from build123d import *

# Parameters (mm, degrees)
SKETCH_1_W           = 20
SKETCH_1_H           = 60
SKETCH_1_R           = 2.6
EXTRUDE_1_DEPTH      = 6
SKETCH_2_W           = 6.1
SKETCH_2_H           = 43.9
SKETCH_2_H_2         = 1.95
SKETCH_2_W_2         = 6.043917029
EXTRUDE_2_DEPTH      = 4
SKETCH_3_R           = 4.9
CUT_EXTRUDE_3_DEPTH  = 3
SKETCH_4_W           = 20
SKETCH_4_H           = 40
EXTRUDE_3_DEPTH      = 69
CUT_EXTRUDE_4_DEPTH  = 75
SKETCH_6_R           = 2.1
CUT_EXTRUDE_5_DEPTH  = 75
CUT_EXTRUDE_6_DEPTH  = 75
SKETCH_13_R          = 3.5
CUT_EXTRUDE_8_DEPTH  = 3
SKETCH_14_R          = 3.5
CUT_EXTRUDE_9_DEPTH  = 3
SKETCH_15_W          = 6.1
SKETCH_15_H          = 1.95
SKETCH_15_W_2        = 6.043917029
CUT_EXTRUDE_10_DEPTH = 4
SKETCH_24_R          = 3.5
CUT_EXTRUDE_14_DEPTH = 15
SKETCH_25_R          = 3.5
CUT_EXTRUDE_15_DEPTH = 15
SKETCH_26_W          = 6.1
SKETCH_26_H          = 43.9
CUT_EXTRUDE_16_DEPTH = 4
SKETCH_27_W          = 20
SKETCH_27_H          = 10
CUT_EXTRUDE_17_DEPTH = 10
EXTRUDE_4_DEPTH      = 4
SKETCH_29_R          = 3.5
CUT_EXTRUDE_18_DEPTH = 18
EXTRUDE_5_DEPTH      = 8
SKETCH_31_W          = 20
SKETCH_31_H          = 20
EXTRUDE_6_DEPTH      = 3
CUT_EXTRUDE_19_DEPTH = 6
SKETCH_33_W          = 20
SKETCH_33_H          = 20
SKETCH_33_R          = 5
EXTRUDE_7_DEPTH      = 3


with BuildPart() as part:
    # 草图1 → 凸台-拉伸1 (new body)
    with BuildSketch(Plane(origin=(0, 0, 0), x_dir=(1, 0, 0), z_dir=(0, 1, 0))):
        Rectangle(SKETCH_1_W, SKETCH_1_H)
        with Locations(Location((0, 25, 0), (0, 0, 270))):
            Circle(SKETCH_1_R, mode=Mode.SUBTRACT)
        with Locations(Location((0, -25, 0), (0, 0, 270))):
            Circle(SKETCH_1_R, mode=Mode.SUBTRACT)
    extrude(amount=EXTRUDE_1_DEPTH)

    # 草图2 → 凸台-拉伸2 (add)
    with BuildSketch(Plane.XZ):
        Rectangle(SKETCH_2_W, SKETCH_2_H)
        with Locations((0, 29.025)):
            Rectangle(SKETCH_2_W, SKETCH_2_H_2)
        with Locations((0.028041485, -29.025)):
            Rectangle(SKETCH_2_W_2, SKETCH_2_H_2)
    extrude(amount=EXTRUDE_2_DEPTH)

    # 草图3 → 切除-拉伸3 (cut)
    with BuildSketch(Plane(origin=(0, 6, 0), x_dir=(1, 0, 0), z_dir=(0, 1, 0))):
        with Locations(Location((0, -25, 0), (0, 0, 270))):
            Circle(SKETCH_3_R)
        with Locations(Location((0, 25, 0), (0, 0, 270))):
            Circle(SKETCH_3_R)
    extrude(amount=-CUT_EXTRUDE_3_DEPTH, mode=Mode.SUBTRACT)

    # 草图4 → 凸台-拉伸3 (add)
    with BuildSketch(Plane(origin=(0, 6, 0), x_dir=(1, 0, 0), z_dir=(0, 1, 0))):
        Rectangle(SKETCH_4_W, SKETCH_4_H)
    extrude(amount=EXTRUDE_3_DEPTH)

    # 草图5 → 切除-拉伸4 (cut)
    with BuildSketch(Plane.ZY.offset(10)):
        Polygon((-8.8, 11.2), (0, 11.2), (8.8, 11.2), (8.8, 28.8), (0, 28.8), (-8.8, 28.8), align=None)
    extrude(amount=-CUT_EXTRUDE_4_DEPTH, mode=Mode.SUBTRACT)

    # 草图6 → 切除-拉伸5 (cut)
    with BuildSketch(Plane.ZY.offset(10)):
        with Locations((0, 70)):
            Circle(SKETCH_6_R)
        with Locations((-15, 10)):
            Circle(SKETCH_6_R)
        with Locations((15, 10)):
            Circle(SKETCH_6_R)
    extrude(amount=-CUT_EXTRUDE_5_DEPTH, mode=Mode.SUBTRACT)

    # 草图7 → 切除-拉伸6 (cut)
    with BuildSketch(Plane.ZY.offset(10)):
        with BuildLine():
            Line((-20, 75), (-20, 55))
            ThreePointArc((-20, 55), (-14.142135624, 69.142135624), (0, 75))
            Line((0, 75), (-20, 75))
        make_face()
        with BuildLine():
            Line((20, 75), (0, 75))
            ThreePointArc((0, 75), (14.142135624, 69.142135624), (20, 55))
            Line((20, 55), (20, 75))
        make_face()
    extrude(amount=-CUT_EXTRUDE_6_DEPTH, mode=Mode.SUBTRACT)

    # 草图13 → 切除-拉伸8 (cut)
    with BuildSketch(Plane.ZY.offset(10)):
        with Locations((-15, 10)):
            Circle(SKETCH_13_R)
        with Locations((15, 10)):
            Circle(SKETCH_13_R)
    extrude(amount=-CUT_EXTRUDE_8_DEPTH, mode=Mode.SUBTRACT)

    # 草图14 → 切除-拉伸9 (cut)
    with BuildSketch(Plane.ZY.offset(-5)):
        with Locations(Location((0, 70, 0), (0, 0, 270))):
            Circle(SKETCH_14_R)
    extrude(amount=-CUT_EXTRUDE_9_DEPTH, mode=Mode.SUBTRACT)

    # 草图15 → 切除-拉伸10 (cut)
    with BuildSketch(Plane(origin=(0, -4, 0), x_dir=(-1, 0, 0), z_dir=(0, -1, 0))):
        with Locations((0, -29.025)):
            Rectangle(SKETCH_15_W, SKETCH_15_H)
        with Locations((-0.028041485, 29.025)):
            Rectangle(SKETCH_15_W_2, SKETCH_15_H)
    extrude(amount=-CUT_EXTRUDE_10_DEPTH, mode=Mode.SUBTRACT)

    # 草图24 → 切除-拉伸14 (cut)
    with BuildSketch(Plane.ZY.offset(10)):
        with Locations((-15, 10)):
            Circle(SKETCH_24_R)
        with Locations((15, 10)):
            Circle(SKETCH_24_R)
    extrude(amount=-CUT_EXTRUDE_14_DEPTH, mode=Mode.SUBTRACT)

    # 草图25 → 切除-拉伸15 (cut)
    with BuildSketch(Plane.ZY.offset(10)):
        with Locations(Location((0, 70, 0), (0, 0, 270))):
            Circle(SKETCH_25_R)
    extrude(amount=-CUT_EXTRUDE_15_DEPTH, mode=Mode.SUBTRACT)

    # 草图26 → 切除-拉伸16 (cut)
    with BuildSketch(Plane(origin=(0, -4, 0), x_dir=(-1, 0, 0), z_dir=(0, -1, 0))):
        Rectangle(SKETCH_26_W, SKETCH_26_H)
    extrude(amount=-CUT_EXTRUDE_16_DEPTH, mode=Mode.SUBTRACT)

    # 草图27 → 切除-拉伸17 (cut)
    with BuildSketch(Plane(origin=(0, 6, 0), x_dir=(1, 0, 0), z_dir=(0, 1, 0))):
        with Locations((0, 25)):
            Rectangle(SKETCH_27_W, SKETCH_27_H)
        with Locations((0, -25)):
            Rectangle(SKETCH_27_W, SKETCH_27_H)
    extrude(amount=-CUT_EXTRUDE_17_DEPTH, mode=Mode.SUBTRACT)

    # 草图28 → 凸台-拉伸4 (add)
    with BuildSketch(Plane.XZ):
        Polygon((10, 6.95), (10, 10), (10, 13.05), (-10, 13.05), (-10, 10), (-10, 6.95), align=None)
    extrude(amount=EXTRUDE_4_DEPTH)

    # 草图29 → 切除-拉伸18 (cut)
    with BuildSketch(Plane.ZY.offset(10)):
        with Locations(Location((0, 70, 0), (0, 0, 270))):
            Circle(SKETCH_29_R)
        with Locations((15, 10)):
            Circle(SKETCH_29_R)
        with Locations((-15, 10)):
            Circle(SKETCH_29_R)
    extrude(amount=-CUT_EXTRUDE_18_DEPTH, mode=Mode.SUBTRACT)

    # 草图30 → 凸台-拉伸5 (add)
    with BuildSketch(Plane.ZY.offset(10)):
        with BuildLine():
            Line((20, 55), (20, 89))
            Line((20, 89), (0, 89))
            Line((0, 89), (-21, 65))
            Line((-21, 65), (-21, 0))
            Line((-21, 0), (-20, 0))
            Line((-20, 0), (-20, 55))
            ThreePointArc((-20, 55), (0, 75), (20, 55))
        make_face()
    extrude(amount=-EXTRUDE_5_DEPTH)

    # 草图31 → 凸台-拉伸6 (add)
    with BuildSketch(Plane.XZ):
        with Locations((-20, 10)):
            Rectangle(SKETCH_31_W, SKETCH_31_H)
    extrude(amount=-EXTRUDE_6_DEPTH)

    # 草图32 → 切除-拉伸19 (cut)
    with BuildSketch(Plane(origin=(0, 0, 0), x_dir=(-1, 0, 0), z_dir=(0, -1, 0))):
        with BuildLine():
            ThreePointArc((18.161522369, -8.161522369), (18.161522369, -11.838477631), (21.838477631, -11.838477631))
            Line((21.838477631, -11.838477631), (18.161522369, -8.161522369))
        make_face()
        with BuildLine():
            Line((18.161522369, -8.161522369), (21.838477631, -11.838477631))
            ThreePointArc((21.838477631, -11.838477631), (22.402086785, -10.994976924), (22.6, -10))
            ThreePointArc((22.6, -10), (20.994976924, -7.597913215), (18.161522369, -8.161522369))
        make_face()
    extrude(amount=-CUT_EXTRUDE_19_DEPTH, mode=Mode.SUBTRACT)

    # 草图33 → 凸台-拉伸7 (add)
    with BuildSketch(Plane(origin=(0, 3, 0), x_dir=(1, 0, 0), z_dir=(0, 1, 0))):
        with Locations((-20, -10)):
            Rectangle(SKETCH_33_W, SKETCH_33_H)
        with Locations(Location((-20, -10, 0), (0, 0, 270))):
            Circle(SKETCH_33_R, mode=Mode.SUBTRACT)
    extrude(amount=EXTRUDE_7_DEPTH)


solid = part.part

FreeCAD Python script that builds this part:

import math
import FreeCAD as App
import Part
import Sketcher
from FreeCAD import Vector


def add_polygon(sketch, points):
    """Adds a closed chain of lines whose ends are joined by coincident constraints."""
    first, n = sketch.GeometryCount, len(points)
    for a, b in zip(points, points[1:] + points[:1]):
        sketch.addGeometry(Part.LineSegment(App.Vector(*a, 0), App.Vector(*b, 0)), False)
    for i in range(n):
        sketch.addConstraint(Sketcher.Constraint("Coincident", first + i, 2, first + (i + 1) % n, 1))

doc = App.newDocument("Part")
body = doc.addObject("PartDesign::Body", "Body")

# Sketch on XZ plane
sketch1 = body.newObject("Sketcher::SketchObject", "Sketch")
sketch1.AttachmentSupport = (doc.getObject("XZ_Plane"), [""])
sketch1.MapMode = "FlatFace"
add_polygon(sketch1, [(-10, -30), (-10, 30), (10, 30), (10, -30)])  # lines 0-3
sketch1.addGeometry(Part.Circle(Vector(0, 25, 0), Vector(0, 0, 1), 2.6), False)  # 4
sketch1.addGeometry(Part.Circle(Vector(0, -25, 0), Vector(0, 0, 1), 2.6), False)  # 5
sketch1.addConstraint(Sketcher.Constraint("Vertical", 0))
sketch1.addConstraint(Sketcher.Constraint("Horizontal", 1))
sketch1.addConstraint(Sketcher.Constraint("Vertical", 2))
sketch1.addConstraint(Sketcher.Constraint("Horizontal", 3))
sketch1.addConstraint(Sketcher.Constraint("Equal", 4, 5))
sketch1.addConstraint(Sketcher.Constraint("Symmetric", 4, 3, 5, 3, -1, 1))
sketch1.addConstraint(Sketcher.Constraint("Symmetric", 0, 2, 2, 2, -1, 1))
sketch1.addConstraint(Sketcher.Constraint("PointOnObject", 4, 3, -2))
sketch1.addConstraint(Sketcher.Constraint("Diameter", 4, 5.2))
sketch1.addConstraint(Sketcher.Constraint("DistanceX", 1, 1, 1, 2, 20.0))
sketch1.addConstraint(Sketcher.Constraint("DistanceY", 0, 1, 0, 2, 60.0))
sketch1.addConstraint(Sketcher.Constraint("DistanceY", -1, 1, 4, 3, 25.0))
pad1 = body.newObject("PartDesign::Pad", "Pad")
pad1.Profile = sketch1
pad1.Length = 6
pad1.Reversed = True

# Sketch on XZ plane
sketch2 = body.newObject("Sketcher::SketchObject", "Sketch001")
sketch2.AttachmentSupport = (doc.getObject("XZ_Plane"), [""])
sketch2.MapMode = "FlatFace"
add_polygon(sketch2, [(-3, 21.9), (-3, -21.9), (3, -21.9), (3, 21.9)])  # lines 0-3
add_polygon(sketch2, [(-3, 30), (-3, 28.1), (3, 28.1), (3, 30)])  # lines 4-7
add_polygon(sketch2, [(-3, -28.1), (-3, -30), (3, -30), (3, -28.1)])  # lines 8-11
sketch2.addConstraint(Sketcher.Constraint("Vertical", 0))
sketch2.addConstraint(Sketcher.Constraint("Horizontal", 1))
sketch2.addConstraint(Sketcher.Constraint("Vertical", 2))
sketch2.addConstraint(Sketcher.Constraint("Horizontal", 3))
sketch2.addConstraint(Sketcher.Constraint("Vertical", 4))
sketch2.addConstraint(Sketcher.Constraint("Horizontal", 5))
sketch2.addConstraint(Sketcher.Constraint("Vertical", 6))
sketch2.addConstraint(Sketcher.Constraint("Horizontal", 7))
sketch2.addConstraint(Sketcher.Constraint("Vertical", 8))
sketch2.addConstraint(Sketcher.Constraint("Horizontal", 9))
sketch2.addConstraint(Sketcher.Constraint("Vertical", 10))
sketch2.addConstraint(Sketcher.Constraint("Horizontal", 11))
sketch2.addConstraint(Sketcher.Constraint("Symmetric", 0, 2, 2, 2, -1, 1))
sketch2.addConstraint(Sketcher.Constraint("Symmetric", 7, 2, 9, 2, -1, 1))
sketch2.addConstraint(Sketcher.Constraint("Symmetric", 5, 2, 10, 2, -1))
sketch2.addConstraint(Sketcher.Constraint("Vertical", 3, 2, 4, 2))
sketch2.addConstraint(Sketcher.Constraint("DistanceX", 1, 1, 1, 2, 6.1))
sketch2.addConstraint(Sketcher.Constraint("DistanceY", 0, 2, 0, 1, 43.9))
sketch2.addConstraint(Sketcher.Constraint("DistanceY", -1, 1, 6, 2, 30.0))
sketch2.addConstraint(Sketcher.Constraint("DistanceY", 0, 2, 4, 2, 50.0))
sketch2.addConstraint(Sketcher.Constraint("DistanceX", 9, 1, 9, 2, 6.043917))
pad2 = body.newObject("PartDesign::Pad", "Pad001")
pad2.Profile = sketch2
pad2.Length = 4

# Sketch on XZ plane
sketch3 = body.newObject("Sketcher::SketchObject", "Sketch002")
sketch3.AttachmentSupport = (doc.getObject("XZ_Plane"), [""])
sketch3.MapMode = "FlatFace"
sketch3.AttachmentOffset = App.Placement(Vector(0, 0, -6), App.Rotation())
sketch3.addGeometry(Part.Circle(Vector(0, 25, 0), Vector(0, 0, 1), 4.9), False)
sketch3.addGeometry(Part.Circle(Vector(0, -25, 0), Vector(0, 0, 1), 4.9), False)
sketch3.addConstraint(Sketcher.Constraint("Equal", 0, 1))
sketch3.addConstraint(Sketcher.Constraint("Symmetric", 0, 3, 1, 3, -1, 1))
sketch3.addConstraint(Sketcher.Constraint("PointOnObject", 0, 3, -2))
sketch3.addConstraint(Sketcher.Constraint("Diameter", 0, 9.8))
sketch3.addConstraint(Sketcher.Constraint("DistanceY", -1, 1, 0, 3, 25.0))
pocket1 = body.newObject("PartDesign::Pocket", "Pocket")
pocket1.Profile = sketch3
pocket1.Length = 3
pocket1.Reversed = True

# Sketch on XZ plane
sketch4 = body.newObject("Sketcher::SketchObject", "Sketch003")
sketch4.AttachmentSupport = (doc.getObject("XZ_Plane"), [""])
sketch4.MapMode = "FlatFace"
sketch4.AttachmentOffset = App.Placement(Vector(0, 0, -6), App.Rotation())
add_polygon(sketch4, [(-10, -20), (-10, 20), (10, 20), (10, -20)])  # lines 0-3
sketch4.addConstraint(Sketcher.Constraint("Vertical", 0))
sketch4.addConstraint(Sketcher.Constraint("Horizontal", 1))
sketch4.addConstraint(Sketcher.Constraint("Vertical", 2))
sketch4.addConstraint(Sketcher.Constraint("Horizontal", 3))
sketch4.addConstraint(Sketcher.Constraint("Symmetric", 0, 2, 2, 2, -1, 1))
sketch4.addConstraint(Sketcher.Constraint("DistanceX", 1, 1, 1, 2, 20.0))
sketch4.addConstraint(Sketcher.Constraint("DistanceY", 0, 1, 0, 2, 40.0))
pad3 = body.newObject("PartDesign::Pad", "Pad002")
pad3.Profile = sketch4
pad3.Length = 69
pad3.Reversed = True

# Sketch on YZ plane
sketch5 = body.newObject("Sketcher::SketchObject", "Sketch004")
sketch5.AttachmentSupport = (doc.getObject("YZ_Plane"), [""])
sketch5.MapMode = "FlatFace"
sketch5.AttachmentOffset = App.Placement(Vector(0, 0, -10), App.Rotation())
add_polygon(sketch5, [(11, -9), (11, 9), (29, 9), (29, -9)])  # lines 0-3
sketch5.addConstraint(Sketcher.Constraint("Vertical", 0))
sketch5.addConstraint(Sketcher.Constraint("Horizontal", 1))
sketch5.addConstraint(Sketcher.Constraint("Vertical", 2))
sketch5.addConstraint(Sketcher.Constraint("Horizontal", 3))
sketch5.addConstraint(Sketcher.Constraint("Equal", 3, 0))
sketch5.addConstraint(Sketcher.Constraint("DistanceX", 1, 1, 1, 2, 17.6))
sketch5.addConstraint(Sketcher.Constraint("DistanceX", -1, 1, 0, 2, 11.2))
sketch5.addConstraint(Sketcher.Constraint("DistanceY", -1, 1, 0, 2, 8.8))
pocket2 = body.newObject("PartDesign::Pocket", "Pocket001")
pocket2.Profile = sketch5
pocket2.Length = 75
pocket2.Reversed = True

# Sketch on YZ plane
sketch6 = body.newObject("Sketcher::SketchObject", "Sketch005")
sketch6.AttachmentSupport = (doc.getObject("YZ_Plane"), [""])
sketch6.MapMode = "FlatFace"
sketch6.AttachmentOffset = App.Placement(Vector(0, 0, -10), App.Rotation())
sketch6.addGeometry(Part.Circle(Vector(70, 0, 0), Vector(0, 0, 1), 2.1), False)
sketch6.addGeometry(Part.Circle(Vector(10, -15, 0), Vector(0, 0, 1), 2.1), False)
sketch6.addGeometry(Part.Circle(Vector(10, 15, 0), Vector(0, 0, 1), 2.1), False)
sketch6.addConstraint(Sketcher.Constraint("Equal", 0, 1))
sketch6.addConstraint(Sketcher.Constraint("Equal", 1, 2))
sketch6.addConstraint(Sketcher.Constraint("Symmetric", 1, 3, 2, 3, -1))
sketch6.addConstraint(Sketcher.Constraint("PointOnObject", 0, 3, -1))
sketch6.addConstraint(Sketcher.Constraint("Diameter", 0, 4.2))
sketch6.addConstraint(Sketcher.Constraint("DistanceX", -1, 1, 0, 3, 70.0))
sketch6.addConstraint(Sketcher.Constraint("DistanceX", -1, 1, 1, 3, 10.0))
sketch6.addConstraint(Sketcher.Constraint("DistanceY", 1, 3, -1, 1, 15.0))
pocket3 = body.newObject("PartDesign::Pocket", "Pocket002")
pocket3.Profile = sketch6
pocket3.Length = 75
pocket3.Reversed = True

# Sketch on YZ plane
sketch7 = body.newObject("Sketcher::SketchObject", "Sketch006")
sketch7.AttachmentSupport = (doc.getObject("YZ_Plane"), [""])
sketch7.MapMode = "FlatFace"
sketch7.AttachmentOffset = App.Placement(Vector(0, 0, -10), App.Rotation())
sketch7.addGeometry(Part.LineSegment(Vector(75, -20, 0), Vector(55, -20, 0)), False)
sketch7.addGeometry(Part.ArcOfCircle(Part.Circle(Vector(55, 0, 0), Vector(0, 0, 1), 20), math.radians(-90), math.radians(0)), False)
sketch7.addGeometry(Part.LineSegment(Vector(75, 0, 0), Vector(75, -20, 0)), False)
sketch7.addGeometry(Part.LineSegment(Vector(75, 20, 0), Vector(75, 0, 0)), False)
sketch7.addGeometry(Part.ArcOfCircle(Part.Circle(Vector(55, 0, 0), Vector(0, 0, 1), 20), math.radians(0), math.radians(90)), False)
sketch7.addGeometry(Part.LineSegment(Vector(55, 20, 0), Vector(75, 20, 0)), False)
sketch7.addConstraint(Sketcher.Constraint("Tangent", 0, 2, 1, 1))
sketch7.addConstraint(Sketcher.Constraint("Tangent", 1, 2, 2, 1))
sketch7.addConstraint(Sketcher.Constraint("Coincident", 2, 2, 0, 1))
sketch7.addConstraint(Sketcher.Constraint("Tangent", 3, 2, 4, 1))
sketch7.addConstraint(Sketcher.Constraint("Tangent", 4, 2, 5, 1))
sketch7.addConstraint(Sketcher.Constraint("Coincident", 5, 2, 3, 1))
sketch7.addConstraint(Sketcher.Constraint("Horizontal", 0))
sketch7.addConstraint(Sketcher.Constraint("Vertical", 2))
sketch7.addConstraint(Sketcher.Constraint("Vertical", 3))
sketch7.addConstraint(Sketcher.Constraint("Horizontal", 5))
sketch7.addConstraint(Sketcher.Constraint("Coincident", 4, 3, 1, 3))
sketch7.addConstraint(Sketcher.Constraint("Equal", 1, 4))
sketch7.addConstraint(Sketcher.Constraint("PointOnObject", 1, 3, -1))
sketch7.addConstraint(Sketcher.Constraint("Radius", 1, 20.0))
sketch7.addConstraint(Sketcher.Constraint("DistanceX", -1, 1, 1, 3, 55.0))
pocket4 = body.newObject("PartDesign::Pocket", "Pocket003")
pocket4.Profile = sketch7
pocket4.Length = 75
pocket4.Reversed = True

# Sketch on YZ plane
sketch8 = body.newObject("Sketcher::SketchObject", "Sketch007")
sketch8.AttachmentSupport = (doc.getObject("YZ_Plane"), [""])
sketch8.MapMode = "FlatFace"
sketch8.AttachmentOffset = App.Placement(Vector(0, 0, -10), App.Rotation())
sketch8.addGeometry(Part.Circle(Vector(10, -15, 0), Vector(0, 0, 1), 3.5), False)
sketch8.addGeometry(Part.Circle(Vector(10, 15, 0), Vector(0, 0, 1), 3.5), False)
sketch8.addConstraint(Sketcher.Constraint("Equal", 0, 1))
sketch8.addConstraint(Sketcher.Constraint("Symmetric", 0, 3, 1, 3, -1))
sketch8.addConstraint(Sketcher.Constraint("Diameter", 0, 7.0))
sketch8.addConstraint(Sketcher.Constraint("DistanceX", -1, 1, 0, 3, 10.0))
sketch8.addConstraint(Sketcher.Constraint("DistanceY", 0, 3, -1, 1, 15.0))
pocket5 = body.newObject("PartDesign::Pocket", "Pocket004")
pocket5.Profile = sketch8
pocket5.Length = 3
pocket5.Reversed = True

# Sketch on YZ plane
sketch9 = body.newObject("Sketcher::SketchObject", "Sketch008")
sketch9.AttachmentSupport = (doc.getObject("YZ_Plane"), [""])
sketch9.MapMode = "FlatFace"
sketch9.AttachmentOffset = App.Placement(Vector(0, 0, 5), App.Rotation())
sketch9.addGeometry(Part.Circle(Vector(70, 0, 0), Vector(0, 0, 1), 3.5), False)
sketch9.addConstraint(Sketcher.Constraint("PointOnObject", 0, 3, -1))
sketch9.addConstraint(Sketcher.Constraint("Diameter", 0, 7.0))
sketch9.addConstraint(Sketcher.Constraint("DistanceX", -1, 1, 0, 3, 70.0))
pocket6 = body.newObject("PartDesign::Pocket", "Pocket005")
pocket6.Profile = sketch9
pocket6.Length = 3
pocket6.Reversed = True

# Sketch on XZ plane
sketch10 = body.newObject("Sketcher::SketchObject", "Sketch009")
sketch10.AttachmentSupport = (doc.getObject("XZ_Plane"), [""])
sketch10.MapMode = "FlatFace"
sketch10.AttachmentOffset = App.Placement(Vector(0, 0, 4), App.Rotation())
add_polygon(sketch10, [(3, 28.1), (3, 30), (-3, 30), (-3, 28.1)])  # lines 0-3
add_polygon(sketch10, [(3, -30), (3, -28.1), (-3, -28.1), (-3, -30)])  # lines 4-7
sketch10.addConstraint(Sketcher.Constraint("Vertical", 0))
sketch10.addConstraint(Sketcher.Constraint("Horizontal", 1))
sketch10.addConstraint(Sketcher.Constraint("Vertical", 2))
sketch10.addConstraint(Sketcher.Constraint("Horizontal", 3))
sketch10.addConstraint(Sketcher.Constraint("Vertical", 4))
sketch10.addConstraint(Sketcher.Constraint("Horizontal", 5))
sketch10.addConstraint(Sketcher.Constraint("Vertical", 6))
sketch10.addConstraint(Sketcher.Constraint("Horizontal", 7))
sketch10.addConstraint(Sketcher.Constraint("Symmetric", 2, 2, 4, 2, -1, 1))
sketch10.addConstraint(Sketcher.Constraint("Symmetric", 0, 2, 7, 2, -1))
sketch10.addConstraint(Sketcher.Constraint("DistanceX", 1, 2, 1, 1, 6.1))
sketch10.addConstraint(Sketcher.Constraint("DistanceY", -1, 1, 0, 2, 30.0))
sketch10.addConstraint(Sketcher.Constraint("DistanceY", 0, 1, 0, 2, 1.95))
sketch10.addConstraint(Sketcher.Constraint("DistanceX", 5, 2, 5, 1, 6.043917))
pocket7 = body.newObject("PartDesign::Pocket", "Pocket006")
pocket7.Profile = sketch10
pocket7.Length = 4

# Sketch on YZ plane
sketch11 = body.newObject("Sketcher::SketchObject", "Sketch010")
sketch11.AttachmentSupport = (doc.getObject("YZ_Plane"), [""])
sketch11.MapMode = "FlatFace"
sketch11.AttachmentOffset = App.Placement(Vector(0, 0, -10), App.Rotation())
sketch11.addGeometry(Part.Circle(Vector(10, -15, 0), Vector(0, 0, 1), 3.5), False)
sketch11.addGeometry(Part.Circle(Vector(10, 15, 0), Vector(0, 0, 1), 3.5), False)
sketch11.addConstraint(Sketcher.Constraint("Equal", 0, 1))
sketch11.addConstraint(Sketcher.Constraint("Symmetric", 0, 3, 1, 3, -1))
sketch11.addConstraint(Sketcher.Constraint("Diameter", 0, 7.0))
sketch11.addConstraint(Sketcher.Constraint("DistanceX", -1, 1, 0, 3, 10.0))
sketch11.addConstraint(Sketcher.Constraint("DistanceY", 0, 3, -1, 1, 15.0))
pocket8 = body.newObject("PartDesign::Pocket", "Pocket007")
pocket8.Profile = sketch11
pocket8.Length = 15
pocket8.Reversed = True

# Sketch on YZ plane
sketch12 = body.newObject("Sketcher::SketchObject", "Sketch011")
sketch12.AttachmentSupport = (doc.getObject("YZ_Plane"), [""])
sketch12.MapMode = "FlatFace"
sketch12.AttachmentOffset = App.Placement(Vector(0, 0, -10), App.Rotation())
sketch12.addGeometry(Part.Circle(Vector(70, 0, 0), Vector(0, 0, 1), 3.5), False)
sketch12.addConstraint(Sketcher.Constraint("PointOnObject", 0, 3, -1))
sketch12.addConstraint(Sketcher.Constraint("Diameter", 0, 7.0))
sketch12.addConstraint(Sketcher.Constraint("DistanceX", -1, 1, 0, 3, 70.0))
pocket9 = body.newObject("PartDesign::Pocket", "Pocket008")
pocket9.Profile = sketch12
pocket9.Length = 15
pocket9.Reversed = True

# Sketch on XZ plane
sketch13 = body.newObject("Sketcher::SketchObject", "Sketch012")
sketch13.AttachmentSupport = (doc.getObject("XZ_Plane"), [""])
sketch13.MapMode = "FlatFace"
sketch13.AttachmentOffset = App.Placement(Vector(0, 0, 4), App.Rotation())
add_polygon(sketch13, [(3, -22), (3, 22), (-3, 22), (-3, -22)])  # lines 0-3
sketch13.addConstraint(Sketcher.Constraint("Vertical", 0))
sketch13.addConstraint(Sketcher.Constraint("Horizontal", 1))
sketch13.addConstraint(Sketcher.Constraint("Vertical", 2))
sketch13.addConstraint(Sketcher.Constraint("Horizontal", 3))
sketch13.addConstraint(Sketcher.Constraint("Symmetric", 0, 2, 2, 2, -1, 1))
sketch13.addConstraint(Sketcher.Constraint("DistanceX", 1, 2, 1, 1, 6.1))
sketch13.addConstraint(Sketcher.Constraint("DistanceY", 0, 1, 0, 2, 43.9))
pocket10 = body.newObject("PartDesign::Pocket", "Pocket009")
pocket10.Profile = sketch13
pocket10.Length = 4

# Sketch on XZ plane
sketch14 = body.newObject("Sketcher::SketchObject", "Sketch013")
sketch14.AttachmentSupport = (doc.getObject("XZ_Plane"), [""])
sketch14.MapMode = "FlatFace"
sketch14.AttachmentOffset = App.Placement(Vector(0, 0, -6), App.Rotation())
add_polygon(sketch14, [(-10, -30), (-10, -20), (10, -20), (10, -30)])  # lines 0-3
add_polygon(sketch14, [(-10, 20), (-10, 30), (10, 30), (10, 20)])  # lines 4-7
sketch14.addConstraint(Sketcher.Constraint("Vertical", 0))
sketch14.addConstraint(Sketcher.Constraint("Horizontal", 1))
sketch14.addConstraint(Sketcher.Constraint("Vertical", 2))
sketch14.addConstraint(Sketcher.Constraint("Horizontal", 3))
sketch14.addConstraint(Sketcher.Constraint("Vertical", 4))
sketch14.addConstraint(Sketcher.Constraint("Horizontal", 5))
sketch14.addConstraint(Sketcher.Constraint("Vertical", 6))
sketch14.addConstraint(Sketcher.Constraint("Horizontal", 7))
sketch14.addConstraint(Sketcher.Constraint("Symmetric", 2, 2, 4, 2, -1, 1))
sketch14.addConstraint(Sketcher.Constraint("Symmetric", 0, 2, 6, 2, -1, 1))
sketch14.addConstraint(Sketcher.Constraint("Vertical", 3, 2, 4, 2))
sketch14.addConstraint(Sketcher.Constraint("DistanceX", 1, 1, 1, 2, 20.0))
sketch14.addConstraint(Sketcher.Constraint("DistanceY", 0, 1, 0, 2, 10.0))
sketch14.addConstraint(Sketcher.Constraint("DistanceY", 0, 2, -1, 1, 20.0))
pocket11 = body.newObject("PartDesign::Pocket", "Pocket010")
pocket11.Profile = sketch14
pocket11.Length = 10
pocket11.Reversed = True

# Sketch on XZ plane
sketch15 = body.newObject("Sketcher::SketchObject", "Sketch014")
sketch15.AttachmentSupport = (doc.getObject("XZ_Plane"), [""])
sketch15.MapMode = "FlatFace"
add_polygon(sketch15, [(10, 7), (10, 13), (-10, 13), (-10, 7)])  # lines 0-3
sketch15.addConstraint(Sketcher.Constraint("Vertical", 0))
sketch15.addConstraint(Sketcher.Constraint("Horizontal", 1))
sketch15.addConstraint(Sketcher.Constraint("Vertical", 2))
sketch15.addConstraint(Sketcher.Constraint("Horizontal", 3))
sketch15.addConstraint(Sketcher.Constraint("DistanceX", 1, 2, 1, 1, 20.0))
sketch15.addConstraint(Sketcher.Constraint("DistanceY", 0, 1, 0, 2, 6.1))
sketch15.addConstraint(Sketcher.Constraint("DistanceX", -1, 1, 0, 2, 10.0))
sketch15.addConstraint(Sketcher.Constraint("DistanceY", -1, 1, 0, 2, 13.05))
pad4 = body.newObject("PartDesign::Pad", "Pad003")
pad4.Profile = sketch15
pad4.Length = 4

# Sketch on YZ plane
sketch16 = body.newObject("Sketcher::SketchObject", "Sketch015")
sketch16.AttachmentSupport = (doc.getObject("YZ_Plane"), [""])
sketch16.MapMode = "FlatFace"
sketch16.AttachmentOffset = App.Placement(Vector(0, 0, -10), App.Rotation())
sketch16.addGeometry(Part.Circle(Vector(70, 0, 0), Vector(0, 0, 1), 3.5), False)
sketch16.addGeometry(Part.Circle(Vector(10, 15, 0), Vector(0, 0, 1), 3.5), False)
sketch16.addGeometry(Part.Circle(Vector(10, -15, 0), Vector(0, 0, 1), 3.5), False)
sketch16.addConstraint(Sketcher.Constraint("Equal", 0, 1))
sketch16.addConstraint(Sketcher.Constraint("Equal", 1, 2))
sketch16.addConstraint(Sketcher.Constraint("Symmetric", 1, 3, 2, 3, -1))
sketch16.addConstraint(Sketcher.Constraint("PointOnObject", 0, 3, -1))
sketch16.addConstraint(Sketcher.Constraint("Diameter", 0, 7.0))
sketch16.addConstraint(Sketcher.Constraint("DistanceX", -1, 1, 0, 3, 70.0))
sketch16.addConstraint(Sketcher.Constraint("DistanceX", -1, 1, 1, 3, 10.0))
sketch16.addConstraint(Sketcher.Constraint("DistanceY", -1, 1, 1, 3, 15.0))
pocket12 = body.newObject("PartDesign::Pocket", "Pocket011")
pocket12.Profile = sketch16
pocket12.Length = 18
pocket12.Reversed = True

# Sketch on YZ plane
sketch17 = body.newObject("Sketcher::SketchObject", "Sketch016")
sketch17.AttachmentSupport = (doc.getObject("YZ_Plane"), [""])
sketch17.MapMode = "FlatFace"
sketch17.AttachmentOffset = App.Placement(Vector(0, 0, -10), App.Rotation())
sketch17.addGeometry(Part.LineSegment(Vector(55, 20, 0), Vector(89, 20, 0)), False)
sketch17.addGeometry(Part.LineSegment(Vector(89, 20, 0), Vector(89, 0, 0)), False)
sketch17.addGeometry(Part.LineSegment(Vector(89, 0, 0), Vector(65, -21, 0)), False)
sketch17.addGeometry(Part.LineSegment(Vector(65, -21, 0), Vector(0, -21, 0)), False)
sketch17.addGeometry(Part.LineSegment(Vector(0, -21, 0), Vector(0, -20, 0)), False)
sketch17.addGeometry(Part.LineSegment(Vector(0, -20, 0), Vector(55, -20, 0)), False)
sketch17.addGeometry(Part.ArcOfCircle(Part.Circle(Vector(55, 0, 0), Vector(0, 0, 1), 20), math.radians(-90), math.radians(90)), False)
sketch17.addConstraint(Sketcher.Constraint("Coincident", 0, 2, 1, 1))
sketch17.addConstraint(Sketcher.Constraint("Coincident", 1, 2, 2, 1))
sketch17.addConstraint(Sketcher.Constraint("Coincident", 2, 2, 3, 1))
sketch17.addConstraint(Sketcher.Constraint("Coincident", 3, 2, 4, 1))
sketch17.addConstraint(Sketcher.Constraint("Coincident", 4, 2, 5, 1))
sketch17.addConstraint(Sketcher.Constraint("Tangent", 5, 2, 6, 1))
sketch17.addConstraint(Sketcher.Constraint("Tangent", 6, 2, 0, 1))
sketch17.addConstraint(Sketcher.Constraint("Horizontal", 0))
sketch17.addConstraint(Sketcher.Constraint("Vertical", 1))
sketch17.addConstraint(Sketcher.Constraint("Horizontal", 3))
sketch17.addConstraint(Sketcher.Constraint("Vertical", 4))
sketch17.addConstraint(Sketcher.Constraint("Horizontal", 5))
sketch17.addConstraint(Sketcher.Constraint("PointOnObject", 6, 3, -1))
sketch17.addConstraint(Sketcher.Constraint("PointOnObject", 1, 2, -1))
sketch17.addConstraint(Sketcher.Constraint("PointOnObject", 3, 2, -2))
sketch17.addConstraint(Sketcher.Constraint("Radius", 6, 20.0))
sketch17.addConstraint(Sketcher.Constraint("DistanceX", 0, 1, 0, 2, 34.0))
sketch17.addConstraint(Sketcher.Constraint("DistanceX", 3, 2, 3, 1, 65.0))
sketch17.addConstraint(Sketcher.Constraint("DistanceX", 5, 1, 5, 2, 55.0))
sketch17.addConstraint(Sketcher.Constraint("DistanceY", 4, 1, 4, 2, 1.0))
pad5 = body.newObject("PartDesign::Pad", "Pad004")
pad5.Profile = sketch17
pad5.Length = 8

# Sketch on XZ plane
sketch18 = body.newObject("Sketcher::SketchObject", "Sketch017")
sketch18.AttachmentSupport = (doc.getObject("XZ_Plane"), [""])
sketch18.MapMode = "FlatFace"
add_polygon(sketch18, [(-30, 20), (-30, 0), (-10, 0), (-10, 20)])  # lines 0-3
sketch18.addConstraint(Sketcher.Constraint("Vertical", 0))
sketch18.addConstraint(Sketcher.Constraint("Horizontal", 1))
sketch18.addConstraint(Sketcher.Constraint("Vertical", 2))
sketch18.addConstraint(Sketcher.Constraint("Horizontal", 3))
sketch18.addConstraint(Sketcher.Constraint("PointOnObject", 0, 2, -1))
sketch18.addConstraint(Sketcher.Constraint("Equal", 3, 0))
sketch18.addConstraint(Sketcher.Constraint("DistanceX", 1, 1, 1, 2, 20.0))
sketch18.addConstraint(Sketcher.Constraint("DistanceX", 0, 2, -1, 1, 30.0))
pad6 = body.newObject("PartDesign::Pad", "Pad005")
pad6.Profile = sketch18
pad6.Length = 3
pad6.Reversed = True

# Sketch on XZ plane
sketch19 = body.newObject("Sketcher::SketchObject", "Sketch018")
sketch19.AttachmentSupport = (doc.getObject("XZ_Plane"), [""])
sketch19.MapMode = "FlatFace"
sketch19.addGeometry(Part.ArcOfCircle(Part.Circle(Vector(-20, 10, 0), Vector(0, 0, 1), 2.6), math.radians(-45), math.radians(135)), False)
sketch19.addGeometry(Part.ArcOfCircle(Part.Circle(Vector(-20, 10, 0), Vector(0, 0, 1), 2.6), math.radians(135), math.radians(180)), False)
sketch19.addGeometry(Part.ArcOfCircle(Part.Circle(Vector(-20, 10, 0), Vector(0, 0, 1), 2.6), math.radians(180), math.radians(315)), False)
sketch19.addConstraint(Sketcher.Constraint("Tangent", 0, 2, 1, 1))
sketch19.addConstraint(Sketcher.Constraint("Tangent", 1, 2, 2, 1))
sketch19.addConstraint(Sketcher.Constraint("Tangent", 2, 2, 0, 1))
sketch19.addConstraint(Sketcher.Constraint("Horizontal", 2, 3, 1, 2))
sketch19.addConstraint(Sketcher.Constraint("Radius", 0, 2.6))
sketch19.addConstraint(Sketcher.Constraint("DistanceX", 0, 3, -1, 1, 20.0))
sketch19.addConstraint(Sketcher.Constraint("DistanceY", -1, 1, 0, 3, 10.0))
sketch19.addConstraint(Sketcher.Constraint("DistanceX", 0, 2, -1, 1, 21.838478))
sketch19.addConstraint(Sketcher.Constraint("DistanceX", 2, 2, -1, 1, 18.161522))
pocket13 = body.newObject("PartDesign::Pocket", "Pocket012")
pocket13.Profile = sketch19
pocket13.Length = 6

# Sketch on XZ plane
sketch20 = body.newObject("Sketcher::SketchObject", "Sketch019")
sketch20.AttachmentSupport = (doc.getObject("XZ_Plane"), [""])
sketch20.MapMode = "FlatFace"
sketch20.AttachmentOffset = App.Placement(Vector(0, 0, -3), App.Rotation())
add_polygon(sketch20, [(-30, 0), (-30, 20), (-10, 20), (-10, 0)])  # lines 0-3
sketch20.addGeometry(Part.Circle(Vector(-20, 10, 0), Vector(0, 0, 1), 5), False)  # 4
sketch20.addConstraint(Sketcher.Constraint("Vertical", 0))
sketch20.addConstraint(Sketcher.Constraint("Horizontal", 1))
sketch20.addConstraint(Sketcher.Constraint("Vertical", 2))
sketch20.addConstraint(Sketcher.Constraint("Horizontal", 3))
sketch20.addConstraint(Sketcher.Constraint("PointOnObject", 2, 2, -1))
sketch20.addConstraint(Sketcher.Constraint("Equal", 3, 0))
sketch20.addConstraint(Sketcher.Constraint("Diameter", 4, 10.0))
sketch20.addConstraint(Sketcher.Constraint("DistanceX", 1, 1, 1, 2, 20.0))
sketch20.addConstraint(Sketcher.Constraint("DistanceX", 4, 3, -1, 1, 20.0))
sketch20.addConstraint(Sketcher.Constraint("DistanceY", -1, 1, 4, 3, 10.0))
sketch20.addConstraint(Sketcher.Constraint("DistanceX", 0, 2, -1, 1, 30.0))
pad7 = body.newObject("PartDesign::Pad", "Pad006")
pad7.Profile = sketch20
pad7.Length = 3
pad7.Reversed = True

doc.recompute()
